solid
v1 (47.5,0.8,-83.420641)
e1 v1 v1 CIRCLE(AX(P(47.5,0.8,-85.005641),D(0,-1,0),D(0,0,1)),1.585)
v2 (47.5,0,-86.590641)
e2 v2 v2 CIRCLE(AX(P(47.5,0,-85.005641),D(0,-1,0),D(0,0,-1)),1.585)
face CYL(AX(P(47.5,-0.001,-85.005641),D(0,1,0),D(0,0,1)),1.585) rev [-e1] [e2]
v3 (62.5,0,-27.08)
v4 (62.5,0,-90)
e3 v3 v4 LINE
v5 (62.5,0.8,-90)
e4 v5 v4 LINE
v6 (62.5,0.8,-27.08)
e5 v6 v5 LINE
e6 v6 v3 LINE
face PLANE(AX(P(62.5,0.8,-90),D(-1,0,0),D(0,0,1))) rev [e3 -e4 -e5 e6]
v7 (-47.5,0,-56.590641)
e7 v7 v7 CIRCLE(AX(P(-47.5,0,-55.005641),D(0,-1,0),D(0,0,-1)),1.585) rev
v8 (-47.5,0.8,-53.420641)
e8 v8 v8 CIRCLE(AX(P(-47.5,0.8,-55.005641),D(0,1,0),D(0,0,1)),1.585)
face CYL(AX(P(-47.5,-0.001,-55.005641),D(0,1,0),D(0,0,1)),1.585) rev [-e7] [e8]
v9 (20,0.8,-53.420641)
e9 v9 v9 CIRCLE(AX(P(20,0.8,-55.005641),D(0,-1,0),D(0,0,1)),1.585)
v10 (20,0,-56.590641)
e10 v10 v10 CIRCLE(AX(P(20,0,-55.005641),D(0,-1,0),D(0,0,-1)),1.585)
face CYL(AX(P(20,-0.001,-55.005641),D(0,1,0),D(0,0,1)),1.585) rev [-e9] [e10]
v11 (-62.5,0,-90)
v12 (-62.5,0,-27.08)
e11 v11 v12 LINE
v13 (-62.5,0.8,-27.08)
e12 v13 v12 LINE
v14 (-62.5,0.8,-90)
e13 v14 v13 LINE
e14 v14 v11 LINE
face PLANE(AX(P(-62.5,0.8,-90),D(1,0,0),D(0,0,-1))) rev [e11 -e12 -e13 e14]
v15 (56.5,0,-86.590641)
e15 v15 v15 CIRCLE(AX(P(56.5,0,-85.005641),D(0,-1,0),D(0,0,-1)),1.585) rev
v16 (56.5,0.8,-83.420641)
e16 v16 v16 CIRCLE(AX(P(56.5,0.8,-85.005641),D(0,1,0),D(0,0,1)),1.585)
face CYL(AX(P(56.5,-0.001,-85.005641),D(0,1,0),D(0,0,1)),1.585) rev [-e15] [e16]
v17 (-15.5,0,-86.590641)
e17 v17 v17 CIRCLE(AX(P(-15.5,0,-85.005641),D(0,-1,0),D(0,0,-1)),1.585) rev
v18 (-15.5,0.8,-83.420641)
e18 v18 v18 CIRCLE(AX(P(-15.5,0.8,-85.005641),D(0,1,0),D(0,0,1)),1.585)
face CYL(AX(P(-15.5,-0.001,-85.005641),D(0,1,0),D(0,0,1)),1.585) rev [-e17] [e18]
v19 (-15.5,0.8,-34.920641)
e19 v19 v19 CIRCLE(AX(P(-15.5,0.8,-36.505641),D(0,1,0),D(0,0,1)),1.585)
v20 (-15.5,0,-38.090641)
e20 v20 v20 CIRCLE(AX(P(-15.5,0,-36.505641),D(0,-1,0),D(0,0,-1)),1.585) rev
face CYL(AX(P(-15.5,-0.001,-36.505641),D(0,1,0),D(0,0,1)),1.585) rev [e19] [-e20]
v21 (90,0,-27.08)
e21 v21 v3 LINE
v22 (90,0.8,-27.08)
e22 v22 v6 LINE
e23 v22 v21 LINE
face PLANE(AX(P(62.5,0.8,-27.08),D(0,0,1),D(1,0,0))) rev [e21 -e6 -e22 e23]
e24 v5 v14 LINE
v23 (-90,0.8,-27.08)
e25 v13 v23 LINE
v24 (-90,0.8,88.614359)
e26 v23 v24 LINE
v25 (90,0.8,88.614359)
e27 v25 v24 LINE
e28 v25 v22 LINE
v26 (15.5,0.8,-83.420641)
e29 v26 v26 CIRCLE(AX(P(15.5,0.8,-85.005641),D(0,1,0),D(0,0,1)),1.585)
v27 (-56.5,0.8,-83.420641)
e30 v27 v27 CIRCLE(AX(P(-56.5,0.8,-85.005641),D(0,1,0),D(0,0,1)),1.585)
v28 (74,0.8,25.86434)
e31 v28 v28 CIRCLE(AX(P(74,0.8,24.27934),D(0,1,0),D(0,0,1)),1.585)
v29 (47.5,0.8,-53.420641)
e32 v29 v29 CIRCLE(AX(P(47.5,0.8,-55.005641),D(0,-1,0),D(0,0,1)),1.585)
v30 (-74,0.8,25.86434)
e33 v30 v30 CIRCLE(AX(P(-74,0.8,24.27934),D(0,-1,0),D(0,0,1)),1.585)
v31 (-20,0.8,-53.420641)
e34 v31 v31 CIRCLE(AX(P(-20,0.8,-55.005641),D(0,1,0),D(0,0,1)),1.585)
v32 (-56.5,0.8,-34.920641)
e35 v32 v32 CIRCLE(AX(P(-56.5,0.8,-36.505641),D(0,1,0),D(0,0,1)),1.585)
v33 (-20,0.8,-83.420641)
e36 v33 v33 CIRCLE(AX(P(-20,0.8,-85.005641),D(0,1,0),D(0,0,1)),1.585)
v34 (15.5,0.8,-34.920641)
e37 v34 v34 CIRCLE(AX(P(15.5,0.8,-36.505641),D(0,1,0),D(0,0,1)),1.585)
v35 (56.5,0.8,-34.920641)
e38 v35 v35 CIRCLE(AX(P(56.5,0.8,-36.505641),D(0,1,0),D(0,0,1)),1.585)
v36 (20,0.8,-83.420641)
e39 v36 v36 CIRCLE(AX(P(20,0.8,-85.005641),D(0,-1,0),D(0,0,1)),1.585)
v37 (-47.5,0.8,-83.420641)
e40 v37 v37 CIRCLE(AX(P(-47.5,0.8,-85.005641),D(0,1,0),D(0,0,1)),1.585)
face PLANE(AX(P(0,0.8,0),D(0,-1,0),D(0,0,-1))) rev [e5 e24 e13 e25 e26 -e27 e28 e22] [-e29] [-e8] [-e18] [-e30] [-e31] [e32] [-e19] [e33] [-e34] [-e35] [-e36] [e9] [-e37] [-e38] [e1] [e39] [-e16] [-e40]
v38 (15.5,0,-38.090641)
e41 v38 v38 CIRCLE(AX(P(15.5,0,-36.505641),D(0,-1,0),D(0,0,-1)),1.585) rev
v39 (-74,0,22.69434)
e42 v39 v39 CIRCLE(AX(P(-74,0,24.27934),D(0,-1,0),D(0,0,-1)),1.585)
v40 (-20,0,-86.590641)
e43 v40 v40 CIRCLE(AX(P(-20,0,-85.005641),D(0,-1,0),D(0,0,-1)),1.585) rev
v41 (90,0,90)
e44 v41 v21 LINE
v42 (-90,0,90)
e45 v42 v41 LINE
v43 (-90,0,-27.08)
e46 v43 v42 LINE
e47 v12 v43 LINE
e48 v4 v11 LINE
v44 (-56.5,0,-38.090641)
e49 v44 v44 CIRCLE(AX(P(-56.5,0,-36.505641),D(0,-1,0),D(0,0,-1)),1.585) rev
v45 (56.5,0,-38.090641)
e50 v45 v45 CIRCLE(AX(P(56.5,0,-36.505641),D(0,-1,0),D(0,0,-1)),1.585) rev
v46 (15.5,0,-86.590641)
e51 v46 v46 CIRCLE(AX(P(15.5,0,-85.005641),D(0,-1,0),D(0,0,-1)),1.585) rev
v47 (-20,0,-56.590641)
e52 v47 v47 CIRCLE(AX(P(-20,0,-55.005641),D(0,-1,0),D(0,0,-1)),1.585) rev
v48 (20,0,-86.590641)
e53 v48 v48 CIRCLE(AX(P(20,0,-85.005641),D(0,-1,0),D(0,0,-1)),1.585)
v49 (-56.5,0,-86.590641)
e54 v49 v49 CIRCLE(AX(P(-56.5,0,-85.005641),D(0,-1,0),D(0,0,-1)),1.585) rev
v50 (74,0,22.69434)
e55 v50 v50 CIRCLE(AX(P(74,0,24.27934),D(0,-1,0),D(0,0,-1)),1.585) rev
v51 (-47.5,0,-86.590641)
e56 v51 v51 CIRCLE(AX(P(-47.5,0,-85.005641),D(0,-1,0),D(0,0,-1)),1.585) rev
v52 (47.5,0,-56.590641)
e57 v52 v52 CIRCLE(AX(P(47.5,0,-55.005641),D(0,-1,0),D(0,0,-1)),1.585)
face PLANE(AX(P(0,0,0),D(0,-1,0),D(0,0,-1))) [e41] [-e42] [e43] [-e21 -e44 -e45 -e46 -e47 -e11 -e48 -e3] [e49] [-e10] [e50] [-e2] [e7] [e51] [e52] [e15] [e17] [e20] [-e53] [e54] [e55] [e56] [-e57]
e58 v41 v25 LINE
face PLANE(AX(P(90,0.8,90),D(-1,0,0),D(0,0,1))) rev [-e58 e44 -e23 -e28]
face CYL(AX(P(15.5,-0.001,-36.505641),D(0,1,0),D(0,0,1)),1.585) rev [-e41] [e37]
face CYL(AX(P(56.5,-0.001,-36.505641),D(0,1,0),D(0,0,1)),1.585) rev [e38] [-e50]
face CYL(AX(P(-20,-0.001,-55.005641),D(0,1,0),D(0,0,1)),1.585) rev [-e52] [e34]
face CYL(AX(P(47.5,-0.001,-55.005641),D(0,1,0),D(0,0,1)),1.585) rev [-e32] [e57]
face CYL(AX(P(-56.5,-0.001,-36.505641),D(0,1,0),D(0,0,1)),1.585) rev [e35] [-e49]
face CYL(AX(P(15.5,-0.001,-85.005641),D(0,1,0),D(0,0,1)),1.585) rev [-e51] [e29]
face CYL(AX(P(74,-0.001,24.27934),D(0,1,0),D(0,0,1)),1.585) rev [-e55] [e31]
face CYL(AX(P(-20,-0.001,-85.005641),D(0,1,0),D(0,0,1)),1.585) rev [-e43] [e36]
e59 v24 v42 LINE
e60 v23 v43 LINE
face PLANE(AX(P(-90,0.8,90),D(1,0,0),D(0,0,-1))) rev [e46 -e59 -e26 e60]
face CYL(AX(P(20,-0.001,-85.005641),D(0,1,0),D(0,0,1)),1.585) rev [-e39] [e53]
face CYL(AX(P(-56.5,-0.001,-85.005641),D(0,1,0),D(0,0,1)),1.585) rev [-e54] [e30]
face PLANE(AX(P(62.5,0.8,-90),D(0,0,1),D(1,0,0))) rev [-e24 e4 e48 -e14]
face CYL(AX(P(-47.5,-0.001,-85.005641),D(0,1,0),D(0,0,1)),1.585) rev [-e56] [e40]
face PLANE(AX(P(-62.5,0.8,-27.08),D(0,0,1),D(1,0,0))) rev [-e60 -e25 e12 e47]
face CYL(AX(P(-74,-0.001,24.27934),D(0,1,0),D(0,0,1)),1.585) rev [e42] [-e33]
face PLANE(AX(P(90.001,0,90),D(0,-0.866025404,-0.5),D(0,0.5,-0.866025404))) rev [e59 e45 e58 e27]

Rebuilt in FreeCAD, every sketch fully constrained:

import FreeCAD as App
import Part
import Sketcher
Q = App.Units.Quantity

doc = App.newDocument("Part")
body = doc.addObject("PartDesign::Body", "Body")

# Sketch on XZ plane
sketch1 = doc.addObject("Sketcher::SketchObject", "Sketch")
body.addObject(sketch1)
sketch1.AttachmentSupport = (doc.XZ_Plane, [""])
sketch1.MapMode = "FlatFace"
sketch1.addGeometry([
    Part.LineSegment(App.Vector(-62, -90, 0), App.Vector(-62, -27, 0)),  # 0
    Part.LineSegment(App.Vector(-62, -27, 0), App.Vector(-90, -27, 0)),  # 1
    Part.LineSegment(App.Vector(-90, -27, 0), App.Vector(-90, 90, 0)),  # 2
    Part.LineSegment(App.Vector(-90, 90, 0), App.Vector(90, 90, 0)),  # 3
    Part.LineSegment(App.Vector(90, 90, 0), App.Vector(90, -27, 0)),  # 4
    Part.LineSegment(App.Vector(90, -27, 0), App.Vector(62, -27, 0)),  # 5
    Part.LineSegment(App.Vector(62, -27, 0), App.Vector(62, -90, 0)),  # 6
    Part.LineSegment(App.Vector(62, -90, 0), App.Vector(-62, -90, 0)),  # 7
], False)
sketch1.addConstraint([
    Sketcher.Constraint("Coincident", 0, 2, 1, 1),
    Sketcher.Constraint("Coincident", 1, 2, 2, 1),
    Sketcher.Constraint("Coincident", 2, 2, 3, 1),
    Sketcher.Constraint("Coincident", 3, 2, 4, 1),
    Sketcher.Constraint("Coincident", 4, 2, 5, 1),
    Sketcher.Constraint("Coincident", 5, 2, 6, 1),
    Sketcher.Constraint("Coincident", 6, 2, 7, 1),
    Sketcher.Constraint("Coincident", 7, 2, 0, 1),
    Sketcher.Constraint("Vertical", 0),
    Sketcher.Constraint("Horizontal", 1),
    Sketcher.Constraint("Vertical", 2),
    Sketcher.Constraint("Horizontal", 3),
    Sketcher.Constraint("Vertical", 4),
    Sketcher.Constraint("Horizontal", 5),
    Sketcher.Constraint("Vertical", 6),
    Sketcher.Constraint("Horizontal", 7),
    Sketcher.Constraint("Symmetric", 1, 2, 4, 2, -2),
    Sketcher.Constraint("Equal", 1, 5),
    Sketcher.Constraint("DistanceX", 3, 1, 3, 2, 180.0),
    Sketcher.Constraint("DistanceX", 7, 2, 7, 1, 125.0),
    Sketcher.Constraint("DistanceY", -1, 1, 2, 2, 90.0),
    Sketcher.Constraint("DistanceY", 6, 2, -1, 1, 90.0),
    Sketcher.Constraint("DistanceY", 0, 1, 0, 2, 62.92),
])
pad1 = doc.addObject("PartDesign::Pad", "Pad")
body.addObject(pad1)
pad1.Profile = sketch1
pad1.Length = 0.8
pad1.Reversed = True

# Sketch on YZ plane
sketch2 = doc.addObject("Sketcher::SketchObject", "Sketch001")
body.addObject(sketch2)
sketch2.AttachmentSupport = (doc.YZ_Plane, [""])
sketch2.MapMode = "FlatFace"
sketch2.AttachmentOffset = App.Placement(App.Vector(0, 0, -90), App.Rotation())
sketch2.addGeometry([
    Part.LineSegment(App.Vector(0.8, 88.6, 0), App.Vector(0, 90, 0)),
    Part.LineSegment(App.Vector(0, 90, 0), App.Vector(0.8, 90, 0)),
    Part.LineSegment(App.Vector(0.8, 90, 0), App.Vector(0.8, 88.6, 0)),
], False)
sketch2.addConstraint([
    Sketcher.Constraint("Coincident", 0, 2, 1, 1),
    Sketcher.Constraint("Coincident", 1, 2, 2, 1),
    Sketcher.Constraint("Coincident", 2, 2, 0, 1),
    Sketcher.Constraint("Horizontal", 1),
    Sketcher.Constraint("Vertical", 2),
    Sketcher.Constraint("PointOnObject", 0, 2, -2),
    Sketcher.Constraint("Angle", 0, Q("120 deg")),
    Sketcher.Constraint("DistanceX", 1, 1, 1, 2, 0.8),
    Sketcher.Constraint("DistanceY", -1, 1, 0, 2, 90.0),
])
pocket1 = doc.addObject("PartDesign::Pocket", "Pocket")
body.addObject(pocket1)
pocket1.Profile = sketch2
pocket1.Type = "UpToFirst"
pocket1.Reversed = True

# Sketch on XZ plane
sketch3 = doc.addObject("Sketcher::SketchObject", "Sketch002")
body.addObject(sketch3)
sketch3.AttachmentSupport = (doc.XZ_Plane, [""])
sketch3.MapMode = "FlatFace"
sketch3.AttachmentOffset = App.Placement(App.Vector(0, 0, -0.8), App.Rotation())
sketch3.addGeometry(Part.Circle(App.Vector(74, 24.3, 0), App.Vector(0, 0, 1), 1.6), False)
sketch3.addConstraint([
    Sketcher.Constraint("Diameter", 0, 3.17),
    Sketcher.Constraint("DistanceX", -1, 1, 0, 3, 74.0),
    Sketcher.Constraint("DistanceY", -1, 1, 0, 3, 24.27934),
])
pocket2 = doc.addObject("PartDesign::Pocket", "Pocket001")
body.addObject(pocket2)
pocket2.Profile = sketch3
pocket2.Length = 0.8
pocket2.Reversed = True
doc.recompute()

mirrored = doc.addObject("PartDesign::Mirrored", "Mirrored")
body.addObject(mirrored)
mirrored.Originals = [pocket2]
mirrored.MirrorPlane = (doc.YZ_Plane, [""])
body.Tip = mirrored

# Sketch on XZ plane
sketch4 = doc.addObject("Sketcher::SketchObject", "Sketch003")
body.addObject(sketch4)
sketch4.AttachmentSupport = (doc.XZ_Plane, [""])
sketch4.MapMode = "FlatFace"
sketch4.AttachmentOffset = App.Placement(App.Vector(0, 0, -0.8), App.Rotation())
sketch4.addGeometry(Part.Circle(App.Vector(-56.5, -36.5, 0), App.Vector(0, 0, 1), 1.6), False)
sketch4.addConstraint([
    Sketcher.Constraint("Diameter", 0, 3.17),
    Sketcher.Constraint("DistanceX", 0, 3, -1, 1, 56.5),
    Sketcher.Constraint("DistanceY", 0, 3, -1, 1, 36.505641),
])
pocket3 = doc.addObject("PartDesign::Pocket", "Pocket002")
body.addObject(pocket3)
pocket3.Profile = sketch4
pocket3.Type = "UpToFirst"
pocket3.Reversed = True

# Sketch on XZ plane
sketch5 = doc.addObject("Sketcher::SketchObject", "Sketch004")
body.addObject(sketch5)
sketch5.AttachmentSupport = (doc.XZ_Plane, [""])
sketch5.MapMode = "FlatFace"
sketch5.AttachmentOffset = App.Placement(App.Vector(0, 0, -0.8), App.Rotation())
sketch5.addGeometry(Part.Circle(App.Vector(-15.5, -36.5, 0), App.Vector(0, 0, 1), 1.6), False)
sketch5.addConstraint([
    Sketcher.Constraint("Diameter", 0, 3.17),
    Sketcher.Constraint("DistanceX", 0, 3, -1, 1, 15.5),
    Sketcher.Constraint("DistanceY", 0, 3, -1, 1, 36.505641),
])
pocket4 = doc.addObject("PartDesign::Pocket", "Pocket003")
body.addObject(pocket4)
pocket4.Profile = sketch5
pocket4.Type = "UpToFirst"
pocket4.Reversed = True

# Sketch on XZ plane
sketch6 = doc.addObject("Sketcher::SketchObject", "Sketch005")
body.addObject(sketch6)
sketch6.AttachmentSupport = (doc.XZ_Plane, [""])
sketch6.MapMode = "FlatFace"
sketch6.AttachmentOffset = App.Placement(App.Vector(0, 0, -0.8), App.Rotation())
sketch6.addGeometry(Part.Circle(App.Vector(-15.5, -85, 0), App.Vector(0, 0, 1), 1.6), False)
sketch6.addConstraint([
    Sketcher.Constraint("Diameter", 0, 3.17),
    Sketcher.Constraint("DistanceX", 0, 3, -1, 1, 15.5),
    Sketcher.Constraint("DistanceY", 0, 3, -1, 1, 85.005641),
])
pocket5 = doc.addObject("PartDesign::Pocket", "Pocket004")
body.addObject(pocket5)
pocket5.Profile = sketch6
pocket5.Type = "UpToFirst"
pocket5.Reversed = True

# Sketch on XZ plane
sketch7 = doc.addObject("Sketcher::SketchObject", "Sketch006")
body.addObject(sketch7)
sketch7.AttachmentSupport = (doc.XZ_Plane, [""])
sketch7.MapMode = "FlatFace"
sketch7.AttachmentOffset = App.Placement(App.Vector(0, 0, -0.8), App.Rotation())
sketch7.addGeometry(Part.Circle(App.Vector(-56.5, -85, 0), App.Vector(0, 0, 1), 1.6), False)
sketch7.addConstraint([
    Sketcher.Constraint("Diameter", 0, 3.17),
    Sketcher.Constraint("DistanceX", 0, 3, -1, 1, 56.5),
    Sketcher.Constraint("DistanceY", 0, 3, -1, 1, 85.005641),
])
pocket6 = doc.addObject("PartDesign::Pocket", "Pocket005")
body.addObject(pocket6)
pocket6.Profile = sketch7
pocket6.Type = "UpToFirst"
pocket6.Reversed = True

# Sketch on XZ plane
sketch8 = doc.addObject("Sketcher::SketchObject", "Sketch007")
body.addObject(sketch8)
sketch8.AttachmentSupport = (doc.XZ_Plane, [""])
sketch8.MapMode = "FlatFace"
sketch8.AttachmentOffset = App.Placement(App.Vector(0, 0, -0.8), App.Rotation())
sketch8.addGeometry(Part.Circle(App.Vector(56.5, -85, 0), App.Vector(0, 0, 1), 1.6), False)
sketch8.addConstraint([
    Sketcher.Constraint("Diameter", 0, 3.17),
    Sketcher.Constraint("DistanceX", -1, 1, 0, 3, 56.5),
    Sketcher.Constraint("DistanceY", 0, 3, -1, 1, 85.005641),
])
pocket7 = doc.addObject("PartDesign::Pocket", "Pocket006")
body.addObject(pocket7)
pocket7.Profile = sketch8
pocket7.Type = "UpToFirst"
pocket7.Reversed = True

# Sketch on XZ plane
sketch9 = doc.addObject("Sketcher::SketchObject", "Sketch008")
body.addObject(sketch9)
sketch9.AttachmentSupport = (doc.XZ_Plane, [""])
sketch9.MapMode = "FlatFace"
sketch9.AttachmentOffset = App.Placement(App.Vector(0, 0, -0.8), App.Rotation())
sketch9.addGeometry(Part.Circle(App.Vector(15.5, -85, 0), App.Vector(0, 0, 1), 1.6), False)
sketch9.addConstraint([
    Sketcher.Constraint("Diameter", 0, 3.17),
    Sketcher.Constraint("DistanceX", -1, 1, 0, 3, 15.5),
    Sketcher.Constraint("DistanceY", 0, 3, -1, 1, 85.005641),
])
pocket8 = doc.addObject("PartDesign::Pocket", "Pocket007")
body.addObject(pocket8)
pocket8.Profile = sketch9
pocket8.Type = "UpToFirst"
pocket8.Reversed = True

# Sketch on XZ plane
sketch10 = doc.addObject("Sketcher::SketchObject", "Sketch009")
body.addObject(sketch10)
sketch10.AttachmentSupport = (doc.XZ_Plane, [""])
sketch10.MapMode = "FlatFace"
sketch10.AttachmentOffset = App.Placement(App.Vector(0, 0, -0.8), App.Rotation())
sketch10.addGeometry(Part.Circle(App.Vector(15.5, -36.5, 0), App.Vector(0, 0, 1), 1.6), False)
sketch10.addConstraint([
    Sketcher.Constraint("Diameter", 0, 3.17),
    Sketcher.Constraint("DistanceX", -1, 1, 0, 3, 15.5),
    Sketcher.Constraint("DistanceY", 0, 3, -1, 1, 36.505641),
])
pocket9 = doc.addObject("PartDesign::Pocket", "Pocket008")
body.addObject(pocket9)
pocket9.Profile = sketch10
pocket9.Type = "UpToFirst"
pocket9.Reversed = True

# Sketch on XZ plane
sketch11 = doc.addObject("Sketcher::SketchObject", "Sketch010")
body.addObject(sketch11)
sketch11.AttachmentSupport = (doc.XZ_Plane, [""])
sketch11.MapMode = "FlatFace"
sketch11.AttachmentOffset = App.Placement(App.Vector(0, 0, -0.8), App.Rotation())
sketch11.addGeometry(Part.Circle(App.Vector(56.5, -36.5, 0), App.Vector(0, 0, 1), 1.6), False)
sketch11.addConstraint([
    Sketcher.Constraint("Diameter", 0, 3.17),
    Sketcher.Constraint("DistanceX", -1, 1, 0, 3, 56.5),
    Sketcher.Constraint("DistanceY", 0, 3, -1, 1, 36.505641),
])
pocket10 = doc.addObject("PartDesign::Pocket", "Pocket009")
body.addObject(pocket10)
pocket10.Profile = sketch11
pocket10.Type = "UpToFirst"
pocket10.Reversed = True

# Sketch on XZ plane
sketch12 = doc.addObject("Sketcher::SketchObject", "Sketch011")
body.addObject(sketch12)
sketch12.AttachmentSupport = (doc.XZ_Plane, [""])
sketch12.MapMode = "FlatFace"
sketch12.AttachmentOffset = App.Placement(App.Vector(0, 0, -0.8), App.Rotation())
sketch12.addGeometry([
    Part.Circle(App.Vector(-20, -85, 0), App.Vector(0, 0, 1), 1.6),
    Part.Circle(App.Vector(-47.5, -85, 0), App.Vector(0, 0, 1), 1.6),
    Part.Circle(App.Vector(-47.5, -55, 0), App.Vector(0, 0, 1), 1.6),
    Part.Circle(App.Vector(-20, -55, 0), App.Vector(0, 0, 1), 1.6),
], False)
sketch12.addConstraint([
    Sketcher.Constraint("Equal", 0, 1),
    Sketcher.Constraint("Equal", 1, 2),
    Sketcher.Constraint("Equal", 2, 3),
    Sketcher.Constraint("Horizontal", 0, 3, 1, 3),
    Sketcher.Constraint("Horizontal", 2, 3, 3, 3),
    Sketcher.Constraint("Vertical", 1, 3, 2, 3),
    Sketcher.Constraint("Vertical", 0, 3, 3, 3),
    Sketcher.Constraint("Diameter", 0, 3.17),
    Sketcher.Constraint("DistanceX", 0, 3, -1, 1, 20.0),
    Sketcher.Constraint("DistanceY", 1, 3, 2, 3, 30.0),
    Sketcher.Constraint("DistanceX", 1, 3, -1, 1, 47.5),
    Sketcher.Constraint("DistanceY", 0, 3, -1, 1, 85.005641),
])
pocket11 = doc.addObject("PartDesign::Pocket", "Pocket010")
body.addObject(pocket11)
pocket11.Profile = sketch12
pocket11.Length = 0.8
pocket11.Reversed = True
doc.recompute()

mirrored2 = doc.addObject("PartDesign::Mirrored", "Mirrored001")
body.addObject(mirrored2)
mirrored2.Originals = [pocket11]
mirrored2.MirrorPlane = (doc.YZ_Plane, [""])
body.Tip = mirrored2

doc.recompute()
